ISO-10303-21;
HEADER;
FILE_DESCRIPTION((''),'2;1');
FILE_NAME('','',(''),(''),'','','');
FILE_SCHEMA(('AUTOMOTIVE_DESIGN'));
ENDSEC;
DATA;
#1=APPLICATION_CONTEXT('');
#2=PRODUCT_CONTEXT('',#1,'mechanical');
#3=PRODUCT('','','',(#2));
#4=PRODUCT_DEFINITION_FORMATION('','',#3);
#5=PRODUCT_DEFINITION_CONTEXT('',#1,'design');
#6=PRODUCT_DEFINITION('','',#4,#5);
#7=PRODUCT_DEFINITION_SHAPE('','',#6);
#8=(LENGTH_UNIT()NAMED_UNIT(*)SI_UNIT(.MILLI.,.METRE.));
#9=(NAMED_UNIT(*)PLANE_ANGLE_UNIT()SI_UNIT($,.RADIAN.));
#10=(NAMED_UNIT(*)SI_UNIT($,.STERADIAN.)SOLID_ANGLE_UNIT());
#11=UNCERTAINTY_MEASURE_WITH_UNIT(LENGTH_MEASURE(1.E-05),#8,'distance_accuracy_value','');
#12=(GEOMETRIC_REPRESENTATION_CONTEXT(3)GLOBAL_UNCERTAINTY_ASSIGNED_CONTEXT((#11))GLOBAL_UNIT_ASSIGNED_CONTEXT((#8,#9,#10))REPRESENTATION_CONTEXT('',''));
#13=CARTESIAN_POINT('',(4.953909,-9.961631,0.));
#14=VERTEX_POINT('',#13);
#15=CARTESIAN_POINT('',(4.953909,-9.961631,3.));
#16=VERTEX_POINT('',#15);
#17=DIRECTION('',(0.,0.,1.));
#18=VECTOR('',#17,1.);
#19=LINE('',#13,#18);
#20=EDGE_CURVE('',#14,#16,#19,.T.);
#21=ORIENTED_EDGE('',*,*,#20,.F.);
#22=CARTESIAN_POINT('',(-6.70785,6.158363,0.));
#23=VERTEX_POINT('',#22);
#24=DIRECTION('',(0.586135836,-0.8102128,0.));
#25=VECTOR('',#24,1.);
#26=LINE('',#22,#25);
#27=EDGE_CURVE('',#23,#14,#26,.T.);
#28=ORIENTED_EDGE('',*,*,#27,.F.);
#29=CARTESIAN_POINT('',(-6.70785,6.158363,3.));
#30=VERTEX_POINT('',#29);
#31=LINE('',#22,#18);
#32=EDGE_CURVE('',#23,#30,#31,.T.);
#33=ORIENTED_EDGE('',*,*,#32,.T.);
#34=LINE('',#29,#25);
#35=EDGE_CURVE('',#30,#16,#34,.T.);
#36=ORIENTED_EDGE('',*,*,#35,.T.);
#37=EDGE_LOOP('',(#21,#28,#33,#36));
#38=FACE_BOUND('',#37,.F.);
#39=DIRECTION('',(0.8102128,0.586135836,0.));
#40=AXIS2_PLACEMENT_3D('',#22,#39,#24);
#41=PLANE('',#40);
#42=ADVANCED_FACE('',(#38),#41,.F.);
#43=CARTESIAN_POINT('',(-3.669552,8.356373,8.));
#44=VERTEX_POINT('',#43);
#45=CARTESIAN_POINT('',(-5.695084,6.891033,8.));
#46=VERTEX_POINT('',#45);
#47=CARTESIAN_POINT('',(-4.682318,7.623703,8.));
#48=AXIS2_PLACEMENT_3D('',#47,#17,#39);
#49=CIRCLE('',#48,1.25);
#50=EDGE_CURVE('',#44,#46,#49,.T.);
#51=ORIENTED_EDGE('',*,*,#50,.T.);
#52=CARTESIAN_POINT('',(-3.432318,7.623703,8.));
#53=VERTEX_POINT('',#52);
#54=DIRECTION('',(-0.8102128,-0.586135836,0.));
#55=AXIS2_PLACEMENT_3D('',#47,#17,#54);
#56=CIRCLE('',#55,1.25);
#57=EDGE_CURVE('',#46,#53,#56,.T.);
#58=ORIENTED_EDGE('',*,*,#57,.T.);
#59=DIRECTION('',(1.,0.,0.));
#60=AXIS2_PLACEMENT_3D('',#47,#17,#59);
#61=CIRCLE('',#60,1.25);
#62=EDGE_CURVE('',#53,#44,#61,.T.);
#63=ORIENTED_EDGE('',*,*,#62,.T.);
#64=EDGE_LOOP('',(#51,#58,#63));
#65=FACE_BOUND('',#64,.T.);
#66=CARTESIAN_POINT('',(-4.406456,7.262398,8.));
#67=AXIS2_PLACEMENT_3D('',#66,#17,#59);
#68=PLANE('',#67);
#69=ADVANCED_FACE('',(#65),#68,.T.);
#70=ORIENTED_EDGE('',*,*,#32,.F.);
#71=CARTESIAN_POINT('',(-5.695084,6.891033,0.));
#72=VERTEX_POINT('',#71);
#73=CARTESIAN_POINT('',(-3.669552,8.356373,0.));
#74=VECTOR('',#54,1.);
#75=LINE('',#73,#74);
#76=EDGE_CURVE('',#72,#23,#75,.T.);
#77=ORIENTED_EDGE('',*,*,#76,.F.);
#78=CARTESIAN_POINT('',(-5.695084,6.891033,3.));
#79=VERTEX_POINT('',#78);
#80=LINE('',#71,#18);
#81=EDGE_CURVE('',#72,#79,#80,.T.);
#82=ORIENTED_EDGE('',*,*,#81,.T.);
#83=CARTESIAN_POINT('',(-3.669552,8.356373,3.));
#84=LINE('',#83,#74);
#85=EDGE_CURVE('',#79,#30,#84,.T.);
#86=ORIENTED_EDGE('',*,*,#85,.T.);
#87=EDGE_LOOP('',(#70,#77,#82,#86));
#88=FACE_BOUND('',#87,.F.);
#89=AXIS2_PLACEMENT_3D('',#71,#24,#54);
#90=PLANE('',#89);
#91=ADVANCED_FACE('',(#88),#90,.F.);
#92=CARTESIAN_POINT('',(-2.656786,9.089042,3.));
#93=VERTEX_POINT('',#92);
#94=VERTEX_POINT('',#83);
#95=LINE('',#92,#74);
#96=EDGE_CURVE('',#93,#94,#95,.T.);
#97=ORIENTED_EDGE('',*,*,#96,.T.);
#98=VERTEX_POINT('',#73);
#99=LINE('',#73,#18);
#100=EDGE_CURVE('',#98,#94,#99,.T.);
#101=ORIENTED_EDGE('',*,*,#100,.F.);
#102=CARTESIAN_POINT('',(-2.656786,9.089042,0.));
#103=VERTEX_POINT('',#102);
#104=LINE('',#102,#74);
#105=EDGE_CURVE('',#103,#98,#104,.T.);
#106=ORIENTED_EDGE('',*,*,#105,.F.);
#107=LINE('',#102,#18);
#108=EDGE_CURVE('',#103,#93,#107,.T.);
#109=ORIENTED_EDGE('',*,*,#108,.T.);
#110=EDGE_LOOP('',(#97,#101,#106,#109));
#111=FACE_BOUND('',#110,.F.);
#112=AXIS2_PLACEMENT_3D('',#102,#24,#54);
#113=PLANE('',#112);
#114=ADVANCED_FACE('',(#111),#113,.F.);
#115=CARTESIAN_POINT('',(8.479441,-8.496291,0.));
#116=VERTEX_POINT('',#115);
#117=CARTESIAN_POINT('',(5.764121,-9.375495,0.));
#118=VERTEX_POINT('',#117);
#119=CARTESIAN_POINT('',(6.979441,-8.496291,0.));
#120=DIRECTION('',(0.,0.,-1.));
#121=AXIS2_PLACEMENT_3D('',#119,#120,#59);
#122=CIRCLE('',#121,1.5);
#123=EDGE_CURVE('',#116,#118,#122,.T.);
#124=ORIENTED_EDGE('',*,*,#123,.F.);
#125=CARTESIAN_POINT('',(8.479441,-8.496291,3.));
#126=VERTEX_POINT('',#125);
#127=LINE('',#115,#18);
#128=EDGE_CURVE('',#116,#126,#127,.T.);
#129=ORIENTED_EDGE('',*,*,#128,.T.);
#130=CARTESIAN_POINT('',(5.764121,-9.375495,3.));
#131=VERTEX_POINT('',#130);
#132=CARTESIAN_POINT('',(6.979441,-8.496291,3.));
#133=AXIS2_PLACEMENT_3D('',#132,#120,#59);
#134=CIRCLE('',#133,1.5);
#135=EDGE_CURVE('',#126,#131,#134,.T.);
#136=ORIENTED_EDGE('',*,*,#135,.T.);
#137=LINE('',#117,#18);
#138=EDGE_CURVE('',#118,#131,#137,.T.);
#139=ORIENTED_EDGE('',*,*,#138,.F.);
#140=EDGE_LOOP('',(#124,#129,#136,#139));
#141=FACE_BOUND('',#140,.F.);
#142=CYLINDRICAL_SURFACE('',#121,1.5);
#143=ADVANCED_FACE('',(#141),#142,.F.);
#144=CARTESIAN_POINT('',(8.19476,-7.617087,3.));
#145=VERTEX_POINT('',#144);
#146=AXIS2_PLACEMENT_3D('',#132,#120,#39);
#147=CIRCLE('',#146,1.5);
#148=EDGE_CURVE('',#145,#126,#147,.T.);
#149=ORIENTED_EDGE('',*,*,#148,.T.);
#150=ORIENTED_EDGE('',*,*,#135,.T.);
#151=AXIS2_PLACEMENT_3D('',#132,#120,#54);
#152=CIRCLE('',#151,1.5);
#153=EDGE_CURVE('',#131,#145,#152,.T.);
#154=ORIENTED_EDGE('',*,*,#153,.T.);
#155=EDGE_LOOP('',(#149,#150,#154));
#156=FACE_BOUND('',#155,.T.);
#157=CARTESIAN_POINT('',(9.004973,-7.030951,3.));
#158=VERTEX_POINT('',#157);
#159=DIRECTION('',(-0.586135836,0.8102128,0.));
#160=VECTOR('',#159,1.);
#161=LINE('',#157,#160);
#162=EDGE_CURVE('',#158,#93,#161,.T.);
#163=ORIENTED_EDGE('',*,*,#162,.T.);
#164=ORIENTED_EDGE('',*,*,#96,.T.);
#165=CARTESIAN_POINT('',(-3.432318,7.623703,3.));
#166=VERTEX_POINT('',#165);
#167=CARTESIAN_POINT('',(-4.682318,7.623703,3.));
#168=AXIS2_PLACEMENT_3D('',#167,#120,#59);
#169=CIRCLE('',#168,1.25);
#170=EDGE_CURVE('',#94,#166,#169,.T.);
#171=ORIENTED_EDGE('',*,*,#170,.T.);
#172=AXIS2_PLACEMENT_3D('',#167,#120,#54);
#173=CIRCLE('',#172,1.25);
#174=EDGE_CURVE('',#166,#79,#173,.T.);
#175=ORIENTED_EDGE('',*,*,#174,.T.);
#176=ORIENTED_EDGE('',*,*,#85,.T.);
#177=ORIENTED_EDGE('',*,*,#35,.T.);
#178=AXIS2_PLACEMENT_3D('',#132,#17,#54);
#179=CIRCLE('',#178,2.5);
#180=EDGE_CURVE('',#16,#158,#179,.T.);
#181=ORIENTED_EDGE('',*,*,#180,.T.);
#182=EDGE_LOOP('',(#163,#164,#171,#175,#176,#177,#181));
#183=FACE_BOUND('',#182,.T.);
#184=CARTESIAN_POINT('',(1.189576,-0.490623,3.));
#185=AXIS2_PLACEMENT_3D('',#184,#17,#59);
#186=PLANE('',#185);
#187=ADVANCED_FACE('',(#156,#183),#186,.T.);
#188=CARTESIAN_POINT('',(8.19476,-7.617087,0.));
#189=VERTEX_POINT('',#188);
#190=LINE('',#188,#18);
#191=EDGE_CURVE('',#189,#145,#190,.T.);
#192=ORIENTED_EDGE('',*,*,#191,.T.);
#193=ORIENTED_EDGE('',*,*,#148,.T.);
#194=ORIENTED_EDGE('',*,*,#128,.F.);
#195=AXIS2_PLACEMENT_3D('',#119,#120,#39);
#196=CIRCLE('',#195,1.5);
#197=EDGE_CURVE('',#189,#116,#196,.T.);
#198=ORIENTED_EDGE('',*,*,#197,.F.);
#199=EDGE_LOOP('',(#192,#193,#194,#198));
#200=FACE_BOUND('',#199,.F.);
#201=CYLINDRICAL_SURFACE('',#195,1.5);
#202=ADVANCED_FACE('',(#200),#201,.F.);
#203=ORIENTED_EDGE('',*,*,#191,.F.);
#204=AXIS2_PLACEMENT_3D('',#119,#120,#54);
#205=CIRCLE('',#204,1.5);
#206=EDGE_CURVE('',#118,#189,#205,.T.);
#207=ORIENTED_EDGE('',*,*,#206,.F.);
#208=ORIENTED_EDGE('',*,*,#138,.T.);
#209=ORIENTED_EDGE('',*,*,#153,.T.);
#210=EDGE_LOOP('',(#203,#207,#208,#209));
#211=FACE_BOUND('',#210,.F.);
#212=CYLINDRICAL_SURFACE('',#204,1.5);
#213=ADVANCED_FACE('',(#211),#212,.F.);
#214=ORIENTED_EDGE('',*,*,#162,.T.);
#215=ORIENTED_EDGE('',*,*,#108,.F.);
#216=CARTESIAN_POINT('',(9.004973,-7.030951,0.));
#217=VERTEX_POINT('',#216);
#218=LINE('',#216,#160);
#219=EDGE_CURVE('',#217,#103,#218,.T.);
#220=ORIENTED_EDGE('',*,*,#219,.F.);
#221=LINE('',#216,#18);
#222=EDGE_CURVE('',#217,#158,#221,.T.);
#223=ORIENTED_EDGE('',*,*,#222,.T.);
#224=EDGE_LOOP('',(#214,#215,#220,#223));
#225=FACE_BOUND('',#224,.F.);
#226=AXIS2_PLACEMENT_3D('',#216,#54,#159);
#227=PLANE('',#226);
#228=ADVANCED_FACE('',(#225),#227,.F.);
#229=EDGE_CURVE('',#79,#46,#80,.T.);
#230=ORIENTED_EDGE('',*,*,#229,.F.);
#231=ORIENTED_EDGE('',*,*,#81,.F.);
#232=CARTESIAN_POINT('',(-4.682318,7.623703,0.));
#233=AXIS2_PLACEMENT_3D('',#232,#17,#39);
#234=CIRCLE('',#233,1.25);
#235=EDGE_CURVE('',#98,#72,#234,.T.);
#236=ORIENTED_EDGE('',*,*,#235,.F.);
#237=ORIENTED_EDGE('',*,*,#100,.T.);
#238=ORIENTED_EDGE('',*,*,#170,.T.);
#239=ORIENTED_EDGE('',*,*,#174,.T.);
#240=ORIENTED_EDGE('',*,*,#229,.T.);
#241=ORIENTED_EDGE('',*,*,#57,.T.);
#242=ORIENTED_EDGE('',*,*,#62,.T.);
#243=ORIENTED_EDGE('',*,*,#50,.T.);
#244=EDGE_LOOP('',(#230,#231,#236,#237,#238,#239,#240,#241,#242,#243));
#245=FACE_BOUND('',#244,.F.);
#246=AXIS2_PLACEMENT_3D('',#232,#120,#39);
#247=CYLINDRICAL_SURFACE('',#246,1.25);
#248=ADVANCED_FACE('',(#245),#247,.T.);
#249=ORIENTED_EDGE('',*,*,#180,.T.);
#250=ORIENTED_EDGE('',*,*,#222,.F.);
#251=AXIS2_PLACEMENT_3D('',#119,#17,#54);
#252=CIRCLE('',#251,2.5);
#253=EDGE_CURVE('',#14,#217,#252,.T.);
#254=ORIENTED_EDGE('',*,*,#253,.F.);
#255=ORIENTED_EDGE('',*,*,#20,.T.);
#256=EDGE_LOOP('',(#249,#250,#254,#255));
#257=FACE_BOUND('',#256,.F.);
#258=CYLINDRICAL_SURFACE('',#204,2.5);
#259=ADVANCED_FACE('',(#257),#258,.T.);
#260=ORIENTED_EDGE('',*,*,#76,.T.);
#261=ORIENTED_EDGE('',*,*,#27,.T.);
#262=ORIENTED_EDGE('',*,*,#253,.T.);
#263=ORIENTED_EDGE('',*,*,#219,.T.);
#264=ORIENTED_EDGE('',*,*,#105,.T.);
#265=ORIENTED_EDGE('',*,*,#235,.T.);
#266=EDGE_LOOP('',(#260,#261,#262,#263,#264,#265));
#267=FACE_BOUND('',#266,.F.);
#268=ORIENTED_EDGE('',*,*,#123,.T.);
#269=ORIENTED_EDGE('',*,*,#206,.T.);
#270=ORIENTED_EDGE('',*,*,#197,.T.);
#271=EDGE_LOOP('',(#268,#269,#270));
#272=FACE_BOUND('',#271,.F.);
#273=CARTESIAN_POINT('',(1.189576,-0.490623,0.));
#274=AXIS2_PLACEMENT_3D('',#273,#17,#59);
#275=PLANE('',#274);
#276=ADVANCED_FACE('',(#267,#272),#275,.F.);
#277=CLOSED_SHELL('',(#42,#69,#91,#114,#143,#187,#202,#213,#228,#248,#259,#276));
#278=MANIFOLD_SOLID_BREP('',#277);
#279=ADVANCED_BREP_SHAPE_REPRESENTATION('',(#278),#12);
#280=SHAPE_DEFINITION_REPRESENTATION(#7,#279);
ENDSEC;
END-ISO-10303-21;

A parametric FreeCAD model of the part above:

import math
import FreeCAD as App
import Part
import Sketcher
Q = App.Units.Quantity

doc = App.newDocument("Part")
body = doc.addObject("PartDesign::Body", "Body")

sketch1 = body.newObject("Sketcher::SketchObject", "Sketch")
sketch1.AttachmentSupport = (doc.getObject("XY_Plane"), [""])
sketch1.MapMode = "FlatFace"
sketch1.addGeometry(Part.LineSegment(App.Vector(9.004973, -7.030951, 0), App.Vector(-2.656786, 9.089042, 0)), False)
sketch1.addGeometry(Part.LineSegment(App.Vector(-2.656786, 9.089042, 0), App.Vector(-3.669552, 8.356373, 0)), False)
sketch1.addGeometry(Part.ArcOfCircle(Part.Circle(App.Vector(-4.682318, 7.623703, 0), App.Vector(0, 0, 1), 1.25), math.radians(35.883272), math.radians(215.883272)), False)
sketch1.addGeometry(Part.LineSegment(App.Vector(-5.695084, 6.891033, 0), App.Vector(-6.70785, 6.158363, 0)), False)
sketch1.addGeometry(Part.LineSegment(App.Vector(-6.70785, 6.158363, 0), App.Vector(4.953909, -9.961631, 0)), False)
sketch1.addGeometry(Part.ArcOfCircle(Part.Circle(App.Vector(6.979441, -8.496291, 0), App.Vector(0, 0, 1), 2.5), math.radians(-144.116728), math.radians(35.883272)), False)
sketch1.addGeometry(Part.ArcOfCircle(Part.Circle(App.Vector(6.979441, -8.496291, 0), App.Vector(0, 0, 1), 1.5), math.radians(35.883272), math.radians(215.883272)), False)
sketch1.addGeometry(Part.ArcOfCircle(Part.Circle(App.Vector(6.979441, -8.496291, 0), App.Vector(0, 0, 1), 1.5), math.radians(0), math.radians(35.883272)), False)
sketch1.addGeometry(Part.ArcOfCircle(Part.Circle(App.Vector(6.979441, -8.496291, 0), App.Vector(0, 0, 1), 1.5), math.radians(-144.116728), math.radians(0)), False)
sketch1.addConstraint(Sketcher.Constraint("Coincident", 0, 2, 1, 1))
sketch1.addConstraint(Sketcher.Constraint("Coincident", 1, 2, 2, 1))
sketch1.addConstraint(Sketcher.Constraint("Coincident", 2, 2, 3, 1))
sketch1.addConstraint(Sketcher.Constraint("Coincident", 3, 2, 4, 1))
sketch1.addConstraint(Sketcher.Constraint("Tangent", 4, 2, 5, 1))
sketch1.addConstraint(Sketcher.Constraint("Tangent", 5, 2, 0, 1))
sketch1.addConstraint(Sketcher.Constraint("Tangent", 6, 1, 7, 2))
sketch1.addConstraint(Sketcher.Constraint("Tangent", 7, 1, 8, 2))
sketch1.addConstraint(Sketcher.Constraint("Tangent", 8, 1, 6, 2))
sketch1.addConstraint(Sketcher.Constraint("Coincident", 6, 3, 5, 3))
sketch1.addConstraint(Sketcher.Constraint("Perpendicular", 0, 1))
sketch1.addConstraint(Sketcher.Constraint("Parallel", 1, 3))
sketch1.addConstraint(Sketcher.Constraint("Perpendicular", 3, 4))
sketch1.addConstraint(Sketcher.Constraint("Horizontal", 8, 3, 7, 1))
sketch1.addConstraint(Sketcher.Constraint("Equal", 1, 3))
sketch1.addConstraint(Sketcher.Constraint("Equal", 0, 4))
sketch1.addConstraint(Sketcher.Constraint("Radius", 5, Q("2.5 mm")))
sketch1.addConstraint(Sketcher.Constraint("Radius", 6, Q("1.5 mm")))
sketch1.addConstraint(Sketcher.Constraint("Radius", 2, Q("1.25 mm")))
sketch1.addConstraint(Sketcher.Constraint("Distance", 0, Q("19.896 mm")))
sketch1.addConstraint(Sketcher.Constraint("DistanceX", 2, 2, 0, 2, Q("3.038298 mm")))
sketch1.addConstraint(Sketcher.Constraint("DistanceX", -1, 1, 5, 3, Q("6.979441 mm")))
sketch1.addConstraint(Sketcher.Constraint("DistanceY", 5, 3, -1, 1, Q("8.496291 mm")))
sketch1.addConstraint(Sketcher.Constraint("DistanceX", -1, 1, 6, 1, Q("8.19476 mm")))
sketch1.addConstraint(Sketcher.Constraint("DistanceX", -1, 1, 8, 1, Q("5.764121 mm")))
sketch1.addConstraint(Sketcher.Constraint("DistanceX", 2, 3, 5, 3, Q("11.661759 mm")))
pad1 = body.newObject("PartDesign::Pad", "Pad")
pad1.Profile = sketch1
pad1.Length = 3

sketch2 = body.newObject("Sketcher::SketchObject", "Sketch001")
sketch2.AttachmentSupport = (doc.getObject("XY_Plane"), [""])
sketch2.MapMode = "FlatFace"
sketch2.addGeometry(Part.ArcOfCircle(Part.Circle(App.Vector(-4.682318, 7.623703, 0), App.Vector(0, 0, 1), 1.25), math.radians(0), math.radians(35.883272)), False)
sketch2.addGeometry(Part.ArcOfCircle(Part.Circle(App.Vector(-4.682318, 7.623703, 0), App.Vector(0, 0, 1), 1.25), math.radians(35.883272), math.radians(215.883272)), False)
sketch2.addGeometry(Part.ArcOfCircle(Part.Circle(App.Vector(-4.682318, 7.623703, 0), App.Vector(0, 0, 1), 1.25), math.radians(-144.116728), math.radians(0)), False)
sketch2.addConstraint(Sketcher.Constraint("Tangent", 0, 2, 1, 1))
sketch2.addConstraint(Sketcher.Constraint("Tangent", 1, 2, 2, 1))
sketch2.addConstraint(Sketcher.Constraint("Tangent", 2, 2, 0, 1))
sketch2.addConstraint(Sketcher.Constraint("Horizontal", 1, 3, 2, 2))
sketch2.addConstraint(Sketcher.Constraint("Radius", 0, Q("1.25 mm")))
sketch2.addConstraint(Sketcher.Constraint("DistanceX", 0, 2, -1, 1, Q("3.669552 mm")))
sketch2.addConstraint(Sketcher.Constraint("DistanceY", 1, 3, 0, 2, Q("0.73267 mm")))
sketch2.addConstraint(Sketcher.Constraint("DistanceY", 1, 2, 0, 3, Q("0.73267 mm")))
sketch2.addConstraint(Sketcher.Constraint("DistanceY", -1, 1, 0, 3, Q("7.623703 mm")))
pad2 = body.newObject("PartDesign::Pad", "Pad001")
pad2.Profile = sketch2
pad2.Length = 8

doc.recompute()
